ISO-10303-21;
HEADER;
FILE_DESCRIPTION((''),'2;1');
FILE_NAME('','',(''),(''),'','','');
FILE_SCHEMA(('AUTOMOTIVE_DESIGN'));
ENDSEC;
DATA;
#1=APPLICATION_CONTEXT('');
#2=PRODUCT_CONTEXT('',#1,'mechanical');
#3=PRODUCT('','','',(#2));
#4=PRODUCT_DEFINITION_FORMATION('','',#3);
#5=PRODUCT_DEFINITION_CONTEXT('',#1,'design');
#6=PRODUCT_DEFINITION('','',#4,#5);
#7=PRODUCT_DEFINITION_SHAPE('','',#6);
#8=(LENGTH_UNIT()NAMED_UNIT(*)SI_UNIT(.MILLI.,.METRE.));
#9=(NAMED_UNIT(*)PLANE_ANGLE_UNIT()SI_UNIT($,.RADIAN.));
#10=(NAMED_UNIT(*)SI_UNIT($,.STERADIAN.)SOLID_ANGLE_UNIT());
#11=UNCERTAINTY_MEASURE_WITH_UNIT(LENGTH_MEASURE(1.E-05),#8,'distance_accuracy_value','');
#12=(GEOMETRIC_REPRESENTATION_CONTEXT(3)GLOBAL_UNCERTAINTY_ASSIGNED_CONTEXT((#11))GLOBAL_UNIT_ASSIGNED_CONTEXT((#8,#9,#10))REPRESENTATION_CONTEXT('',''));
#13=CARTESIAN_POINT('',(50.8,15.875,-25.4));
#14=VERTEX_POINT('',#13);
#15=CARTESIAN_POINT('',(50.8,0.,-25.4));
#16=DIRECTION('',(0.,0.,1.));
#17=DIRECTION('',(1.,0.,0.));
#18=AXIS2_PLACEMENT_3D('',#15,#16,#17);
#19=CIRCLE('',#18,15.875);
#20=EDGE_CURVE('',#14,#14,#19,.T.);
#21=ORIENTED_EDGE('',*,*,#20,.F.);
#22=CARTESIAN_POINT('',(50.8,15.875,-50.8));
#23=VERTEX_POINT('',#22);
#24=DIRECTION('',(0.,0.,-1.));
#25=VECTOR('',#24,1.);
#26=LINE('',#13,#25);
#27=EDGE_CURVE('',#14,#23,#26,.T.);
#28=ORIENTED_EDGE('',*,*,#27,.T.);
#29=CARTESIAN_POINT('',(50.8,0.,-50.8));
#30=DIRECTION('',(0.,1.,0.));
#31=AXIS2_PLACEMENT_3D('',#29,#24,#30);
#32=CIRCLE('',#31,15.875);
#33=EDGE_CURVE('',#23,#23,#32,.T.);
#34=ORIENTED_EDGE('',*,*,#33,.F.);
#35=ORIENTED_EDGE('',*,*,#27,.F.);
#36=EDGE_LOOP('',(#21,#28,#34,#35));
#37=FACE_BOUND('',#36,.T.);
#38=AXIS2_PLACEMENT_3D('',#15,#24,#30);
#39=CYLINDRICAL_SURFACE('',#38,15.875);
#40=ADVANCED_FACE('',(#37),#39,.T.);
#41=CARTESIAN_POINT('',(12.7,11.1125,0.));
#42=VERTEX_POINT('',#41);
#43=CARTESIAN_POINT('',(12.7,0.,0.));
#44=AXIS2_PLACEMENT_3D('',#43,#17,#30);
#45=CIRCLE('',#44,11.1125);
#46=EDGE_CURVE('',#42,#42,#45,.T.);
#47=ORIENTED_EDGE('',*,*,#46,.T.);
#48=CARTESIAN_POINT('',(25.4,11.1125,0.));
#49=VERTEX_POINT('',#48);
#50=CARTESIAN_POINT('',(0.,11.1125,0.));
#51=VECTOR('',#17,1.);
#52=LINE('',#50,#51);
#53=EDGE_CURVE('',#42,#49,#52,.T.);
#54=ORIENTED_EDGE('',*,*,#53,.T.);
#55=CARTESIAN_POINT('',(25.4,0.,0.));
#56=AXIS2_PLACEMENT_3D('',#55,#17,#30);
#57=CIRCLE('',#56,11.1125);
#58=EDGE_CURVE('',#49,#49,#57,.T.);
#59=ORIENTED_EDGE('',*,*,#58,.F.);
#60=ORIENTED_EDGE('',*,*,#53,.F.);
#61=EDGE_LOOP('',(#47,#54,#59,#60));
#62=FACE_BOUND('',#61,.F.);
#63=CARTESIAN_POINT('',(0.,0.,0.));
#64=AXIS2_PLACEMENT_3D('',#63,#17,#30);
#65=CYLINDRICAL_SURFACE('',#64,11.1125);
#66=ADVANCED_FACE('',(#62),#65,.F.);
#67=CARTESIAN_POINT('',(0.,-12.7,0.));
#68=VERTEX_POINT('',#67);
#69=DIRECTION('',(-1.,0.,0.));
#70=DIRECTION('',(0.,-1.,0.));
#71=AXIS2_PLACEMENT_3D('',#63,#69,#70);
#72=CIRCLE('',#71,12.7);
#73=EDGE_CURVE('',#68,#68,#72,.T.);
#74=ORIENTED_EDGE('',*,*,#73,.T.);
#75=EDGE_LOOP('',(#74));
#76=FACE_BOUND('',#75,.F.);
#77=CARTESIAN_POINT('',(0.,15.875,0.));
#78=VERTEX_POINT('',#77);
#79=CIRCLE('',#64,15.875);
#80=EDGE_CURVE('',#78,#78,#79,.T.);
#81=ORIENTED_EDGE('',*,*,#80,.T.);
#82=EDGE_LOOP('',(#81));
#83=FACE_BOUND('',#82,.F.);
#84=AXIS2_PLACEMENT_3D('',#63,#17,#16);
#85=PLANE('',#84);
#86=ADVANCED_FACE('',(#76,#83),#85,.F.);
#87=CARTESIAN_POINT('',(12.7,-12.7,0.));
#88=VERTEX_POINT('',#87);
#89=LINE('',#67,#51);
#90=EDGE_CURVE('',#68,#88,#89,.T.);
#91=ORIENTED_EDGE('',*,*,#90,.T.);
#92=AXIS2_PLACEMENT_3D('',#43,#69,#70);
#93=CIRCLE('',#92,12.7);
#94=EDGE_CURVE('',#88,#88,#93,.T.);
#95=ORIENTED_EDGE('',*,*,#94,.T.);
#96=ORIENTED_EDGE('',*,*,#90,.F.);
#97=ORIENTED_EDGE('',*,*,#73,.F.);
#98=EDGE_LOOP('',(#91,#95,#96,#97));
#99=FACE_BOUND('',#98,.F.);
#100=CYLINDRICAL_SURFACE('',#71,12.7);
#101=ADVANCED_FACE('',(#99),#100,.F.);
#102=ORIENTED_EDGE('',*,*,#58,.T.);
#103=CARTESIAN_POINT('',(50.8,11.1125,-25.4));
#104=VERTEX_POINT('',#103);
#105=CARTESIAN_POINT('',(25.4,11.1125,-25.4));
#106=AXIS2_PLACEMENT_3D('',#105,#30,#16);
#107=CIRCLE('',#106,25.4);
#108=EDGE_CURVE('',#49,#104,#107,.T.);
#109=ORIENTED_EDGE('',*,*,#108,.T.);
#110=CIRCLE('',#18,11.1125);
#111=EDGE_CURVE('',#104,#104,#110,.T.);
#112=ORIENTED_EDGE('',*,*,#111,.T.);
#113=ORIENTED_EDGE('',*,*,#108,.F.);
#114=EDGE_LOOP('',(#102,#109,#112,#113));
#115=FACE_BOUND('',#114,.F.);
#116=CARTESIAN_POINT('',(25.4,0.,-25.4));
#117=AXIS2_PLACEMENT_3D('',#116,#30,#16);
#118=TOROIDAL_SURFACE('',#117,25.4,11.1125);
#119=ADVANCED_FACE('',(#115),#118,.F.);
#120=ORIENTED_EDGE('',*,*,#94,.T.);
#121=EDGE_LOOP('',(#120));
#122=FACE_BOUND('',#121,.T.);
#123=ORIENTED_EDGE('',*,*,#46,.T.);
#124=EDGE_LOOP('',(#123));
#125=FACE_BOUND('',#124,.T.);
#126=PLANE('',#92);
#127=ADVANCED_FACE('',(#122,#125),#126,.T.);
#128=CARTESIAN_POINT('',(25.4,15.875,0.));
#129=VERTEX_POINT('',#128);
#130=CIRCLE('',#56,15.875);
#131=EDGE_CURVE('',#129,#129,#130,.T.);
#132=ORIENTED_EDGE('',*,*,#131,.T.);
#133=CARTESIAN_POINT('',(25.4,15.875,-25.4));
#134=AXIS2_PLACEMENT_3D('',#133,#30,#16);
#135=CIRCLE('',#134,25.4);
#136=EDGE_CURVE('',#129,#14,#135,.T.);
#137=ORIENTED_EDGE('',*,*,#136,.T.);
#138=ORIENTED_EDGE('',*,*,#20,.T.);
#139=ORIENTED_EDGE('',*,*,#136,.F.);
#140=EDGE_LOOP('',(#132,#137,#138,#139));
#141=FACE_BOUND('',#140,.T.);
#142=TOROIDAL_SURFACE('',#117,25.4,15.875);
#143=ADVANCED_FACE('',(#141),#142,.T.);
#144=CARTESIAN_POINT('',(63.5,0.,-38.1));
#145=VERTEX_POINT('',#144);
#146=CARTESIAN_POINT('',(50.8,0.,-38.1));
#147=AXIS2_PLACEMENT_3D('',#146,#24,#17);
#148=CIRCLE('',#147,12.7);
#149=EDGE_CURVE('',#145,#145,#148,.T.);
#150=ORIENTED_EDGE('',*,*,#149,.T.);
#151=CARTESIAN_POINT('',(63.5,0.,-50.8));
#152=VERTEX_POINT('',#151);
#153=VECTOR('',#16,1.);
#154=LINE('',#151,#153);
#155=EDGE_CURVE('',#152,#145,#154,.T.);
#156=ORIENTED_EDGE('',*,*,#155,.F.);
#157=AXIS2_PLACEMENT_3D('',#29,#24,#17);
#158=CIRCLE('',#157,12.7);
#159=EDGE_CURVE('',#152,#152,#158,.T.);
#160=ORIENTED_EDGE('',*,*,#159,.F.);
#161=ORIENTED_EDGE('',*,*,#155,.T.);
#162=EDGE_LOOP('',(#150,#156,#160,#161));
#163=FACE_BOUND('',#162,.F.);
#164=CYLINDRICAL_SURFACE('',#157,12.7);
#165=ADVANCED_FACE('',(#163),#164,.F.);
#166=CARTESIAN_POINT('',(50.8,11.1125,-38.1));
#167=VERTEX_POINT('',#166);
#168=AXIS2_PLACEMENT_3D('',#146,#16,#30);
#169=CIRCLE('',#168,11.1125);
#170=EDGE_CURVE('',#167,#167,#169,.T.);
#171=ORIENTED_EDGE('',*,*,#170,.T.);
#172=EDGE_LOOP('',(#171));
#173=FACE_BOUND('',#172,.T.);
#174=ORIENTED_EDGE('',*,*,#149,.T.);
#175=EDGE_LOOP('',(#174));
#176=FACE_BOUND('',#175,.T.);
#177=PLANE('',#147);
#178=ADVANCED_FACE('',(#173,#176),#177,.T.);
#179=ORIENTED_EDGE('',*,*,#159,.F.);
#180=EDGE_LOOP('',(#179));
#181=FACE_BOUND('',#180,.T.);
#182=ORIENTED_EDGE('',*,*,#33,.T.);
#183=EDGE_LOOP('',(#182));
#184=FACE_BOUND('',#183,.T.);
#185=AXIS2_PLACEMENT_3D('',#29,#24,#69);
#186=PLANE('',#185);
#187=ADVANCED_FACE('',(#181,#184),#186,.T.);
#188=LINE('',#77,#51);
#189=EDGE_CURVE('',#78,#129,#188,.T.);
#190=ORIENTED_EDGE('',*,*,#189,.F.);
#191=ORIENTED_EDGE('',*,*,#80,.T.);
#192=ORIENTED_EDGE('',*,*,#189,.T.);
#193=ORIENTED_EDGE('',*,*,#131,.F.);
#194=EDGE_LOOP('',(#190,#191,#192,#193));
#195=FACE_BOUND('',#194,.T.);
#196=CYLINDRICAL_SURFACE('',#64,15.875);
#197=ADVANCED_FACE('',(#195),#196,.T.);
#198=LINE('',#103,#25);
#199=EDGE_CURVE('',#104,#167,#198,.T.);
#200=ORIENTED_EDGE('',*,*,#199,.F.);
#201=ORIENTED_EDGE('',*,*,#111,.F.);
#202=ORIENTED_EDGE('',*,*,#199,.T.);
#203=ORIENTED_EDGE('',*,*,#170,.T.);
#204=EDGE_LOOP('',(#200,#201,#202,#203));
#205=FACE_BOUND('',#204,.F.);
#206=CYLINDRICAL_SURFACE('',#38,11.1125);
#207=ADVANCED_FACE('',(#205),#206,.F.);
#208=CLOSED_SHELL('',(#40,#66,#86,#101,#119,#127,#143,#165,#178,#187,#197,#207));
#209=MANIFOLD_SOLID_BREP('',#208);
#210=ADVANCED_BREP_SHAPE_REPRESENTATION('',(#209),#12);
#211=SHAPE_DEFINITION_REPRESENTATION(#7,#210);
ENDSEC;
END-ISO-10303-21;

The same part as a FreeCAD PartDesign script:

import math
import FreeCAD as App
import Part
import Sketcher

V = App.Vector
Q = App.Units.Quantity

doc = App.newDocument("Part")
body = doc.addObject("PartDesign::Body", "Body")

sketch1 = body.newObject("Sketcher::SketchObject", "Sketch")
sketch1.AttachmentSupport = (doc.getObject("YZ_Plane"), [""])
sketch1.MapMode = "FlatFace"
sketch1.addGeometry([
    Part.Circle(V(0, 0, 0), V(0, 0, 1), 16),
    Part.Circle(V(0, 0, 0), V(0, 0, 1), 11),
], False)
sketch1.addConstraint([
    Sketcher.Constraint("Coincident", 0, 3, -1, 1),
    Sketcher.Constraint("Coincident", 1, 3, -1, 1),
    Sketcher.Constraint("Diameter", 0, Q("1.25 in")),
    Sketcher.Constraint("Diameter", 1, Q("0.875 in")),
])

sketch2 = body.newObject("Sketcher::SketchObject", "Sketch001")
sketch2.AttachmentSupport = (doc.getObject("XZ_Plane"), [""])
sketch2.MapMode = "FlatFace"
sketch2.addGeometry([
    Part.LineSegment(V(0, 0, 0), V(25, 0, 0)),
    Part.ArcOfCircle(Part.Circle(V(25, -25, 0), V(0, 0, 1), 25), math.radians(0), math.radians(90)),
    Part.LineSegment(V(51, -25, 0), V(51, -51, 0)),
], False)
sketch2.addConstraint([
    Sketcher.Constraint("Tangent", 0, 2, 1, 2),
    Sketcher.Constraint("Tangent", 1, 1, 2, 1),
    Sketcher.Constraint("Horizontal", 0),
    Sketcher.Constraint("Vertical", 2),
    Sketcher.Constraint("Coincident", 0, 1, -1, 1),
    Sketcher.Constraint("Equal", 0, 2),
    Sketcher.Constraint("Radius", 1, Q("1 in")),
    Sketcher.Constraint("DistanceX", 0, 1, 0, 2, Q("1 in")),
])
doc.recompute()

additivepipe = body.newObject("PartDesign::AdditivePipe", "AdditivePipe")
additivepipe.Profile = sketch1
additivepipe.Spine = (sketch2, ["Edge1", "Edge2", "Edge3"])

sketch3 = body.newObject("Sketcher::SketchObject", "Sketch002")
sketch3.AttachmentSupport = (doc.getObject("YZ_Plane"), [""])
sketch3.MapMode = "FlatFace"
sketch3.addGeometry([
    Part.Circle(V(0, 0, 0), V(0, 0, 1), 13),
    Part.Circle(V(0, 0, 0), V(0, 0, 1), 11),
], False)
sketch3.addConstraint([
    Sketcher.Constraint("Coincident", 0, 3, -1, 1),
    Sketcher.Constraint("Coincident", 1, 3, -1, 1),
    Sketcher.Constraint("Diameter", 0, Q("1 in")),
    Sketcher.Constraint("Diameter", 1, Q("0.875 in")),
])
pocket1 = body.newObject("PartDesign::Pocket", "Pocket")
pocket1.Profile = sketch3
pocket1.Length = Q("0.5 in")
pocket1.Reversed = True

sketch4 = body.newObject("Sketcher::SketchObject", "Sketch003")
sketch4.AttachmentSupport = (doc.getObject("XY_Plane"), [""])
sketch4.MapMode = "FlatFace"
sketch4.AttachmentOffset = App.Placement(V(0, 0, -2 * 25.4), App.Rotation())
sketch4.addGeometry([
    Part.Circle(V(51, 0, 0), V(0, 0, 1), 13),
    Part.Circle(V(51, 0, 0), V(0, 0, 1), 11),
], False)
sketch4.addConstraint([
    Sketcher.Constraint("Coincident", 1, 3, 0, 3),
    Sketcher.Constraint("PointOnObject", 0, 3, -1),
    Sketcher.Constraint("Diameter", 0, Q("1 in")),
    Sketcher.Constraint("Diameter", 1, Q("0.875 in")),
    Sketcher.Constraint("DistanceX", -1, 1, 0, 3, Q("2 in")),
])
pocket2 = body.newObject("PartDesign::Pocket", "Pocket001")
pocket2.Profile = sketch4
pocket2.Length = Q("0.5 in")
pocket2.Reversed = True

doc.recompute()
